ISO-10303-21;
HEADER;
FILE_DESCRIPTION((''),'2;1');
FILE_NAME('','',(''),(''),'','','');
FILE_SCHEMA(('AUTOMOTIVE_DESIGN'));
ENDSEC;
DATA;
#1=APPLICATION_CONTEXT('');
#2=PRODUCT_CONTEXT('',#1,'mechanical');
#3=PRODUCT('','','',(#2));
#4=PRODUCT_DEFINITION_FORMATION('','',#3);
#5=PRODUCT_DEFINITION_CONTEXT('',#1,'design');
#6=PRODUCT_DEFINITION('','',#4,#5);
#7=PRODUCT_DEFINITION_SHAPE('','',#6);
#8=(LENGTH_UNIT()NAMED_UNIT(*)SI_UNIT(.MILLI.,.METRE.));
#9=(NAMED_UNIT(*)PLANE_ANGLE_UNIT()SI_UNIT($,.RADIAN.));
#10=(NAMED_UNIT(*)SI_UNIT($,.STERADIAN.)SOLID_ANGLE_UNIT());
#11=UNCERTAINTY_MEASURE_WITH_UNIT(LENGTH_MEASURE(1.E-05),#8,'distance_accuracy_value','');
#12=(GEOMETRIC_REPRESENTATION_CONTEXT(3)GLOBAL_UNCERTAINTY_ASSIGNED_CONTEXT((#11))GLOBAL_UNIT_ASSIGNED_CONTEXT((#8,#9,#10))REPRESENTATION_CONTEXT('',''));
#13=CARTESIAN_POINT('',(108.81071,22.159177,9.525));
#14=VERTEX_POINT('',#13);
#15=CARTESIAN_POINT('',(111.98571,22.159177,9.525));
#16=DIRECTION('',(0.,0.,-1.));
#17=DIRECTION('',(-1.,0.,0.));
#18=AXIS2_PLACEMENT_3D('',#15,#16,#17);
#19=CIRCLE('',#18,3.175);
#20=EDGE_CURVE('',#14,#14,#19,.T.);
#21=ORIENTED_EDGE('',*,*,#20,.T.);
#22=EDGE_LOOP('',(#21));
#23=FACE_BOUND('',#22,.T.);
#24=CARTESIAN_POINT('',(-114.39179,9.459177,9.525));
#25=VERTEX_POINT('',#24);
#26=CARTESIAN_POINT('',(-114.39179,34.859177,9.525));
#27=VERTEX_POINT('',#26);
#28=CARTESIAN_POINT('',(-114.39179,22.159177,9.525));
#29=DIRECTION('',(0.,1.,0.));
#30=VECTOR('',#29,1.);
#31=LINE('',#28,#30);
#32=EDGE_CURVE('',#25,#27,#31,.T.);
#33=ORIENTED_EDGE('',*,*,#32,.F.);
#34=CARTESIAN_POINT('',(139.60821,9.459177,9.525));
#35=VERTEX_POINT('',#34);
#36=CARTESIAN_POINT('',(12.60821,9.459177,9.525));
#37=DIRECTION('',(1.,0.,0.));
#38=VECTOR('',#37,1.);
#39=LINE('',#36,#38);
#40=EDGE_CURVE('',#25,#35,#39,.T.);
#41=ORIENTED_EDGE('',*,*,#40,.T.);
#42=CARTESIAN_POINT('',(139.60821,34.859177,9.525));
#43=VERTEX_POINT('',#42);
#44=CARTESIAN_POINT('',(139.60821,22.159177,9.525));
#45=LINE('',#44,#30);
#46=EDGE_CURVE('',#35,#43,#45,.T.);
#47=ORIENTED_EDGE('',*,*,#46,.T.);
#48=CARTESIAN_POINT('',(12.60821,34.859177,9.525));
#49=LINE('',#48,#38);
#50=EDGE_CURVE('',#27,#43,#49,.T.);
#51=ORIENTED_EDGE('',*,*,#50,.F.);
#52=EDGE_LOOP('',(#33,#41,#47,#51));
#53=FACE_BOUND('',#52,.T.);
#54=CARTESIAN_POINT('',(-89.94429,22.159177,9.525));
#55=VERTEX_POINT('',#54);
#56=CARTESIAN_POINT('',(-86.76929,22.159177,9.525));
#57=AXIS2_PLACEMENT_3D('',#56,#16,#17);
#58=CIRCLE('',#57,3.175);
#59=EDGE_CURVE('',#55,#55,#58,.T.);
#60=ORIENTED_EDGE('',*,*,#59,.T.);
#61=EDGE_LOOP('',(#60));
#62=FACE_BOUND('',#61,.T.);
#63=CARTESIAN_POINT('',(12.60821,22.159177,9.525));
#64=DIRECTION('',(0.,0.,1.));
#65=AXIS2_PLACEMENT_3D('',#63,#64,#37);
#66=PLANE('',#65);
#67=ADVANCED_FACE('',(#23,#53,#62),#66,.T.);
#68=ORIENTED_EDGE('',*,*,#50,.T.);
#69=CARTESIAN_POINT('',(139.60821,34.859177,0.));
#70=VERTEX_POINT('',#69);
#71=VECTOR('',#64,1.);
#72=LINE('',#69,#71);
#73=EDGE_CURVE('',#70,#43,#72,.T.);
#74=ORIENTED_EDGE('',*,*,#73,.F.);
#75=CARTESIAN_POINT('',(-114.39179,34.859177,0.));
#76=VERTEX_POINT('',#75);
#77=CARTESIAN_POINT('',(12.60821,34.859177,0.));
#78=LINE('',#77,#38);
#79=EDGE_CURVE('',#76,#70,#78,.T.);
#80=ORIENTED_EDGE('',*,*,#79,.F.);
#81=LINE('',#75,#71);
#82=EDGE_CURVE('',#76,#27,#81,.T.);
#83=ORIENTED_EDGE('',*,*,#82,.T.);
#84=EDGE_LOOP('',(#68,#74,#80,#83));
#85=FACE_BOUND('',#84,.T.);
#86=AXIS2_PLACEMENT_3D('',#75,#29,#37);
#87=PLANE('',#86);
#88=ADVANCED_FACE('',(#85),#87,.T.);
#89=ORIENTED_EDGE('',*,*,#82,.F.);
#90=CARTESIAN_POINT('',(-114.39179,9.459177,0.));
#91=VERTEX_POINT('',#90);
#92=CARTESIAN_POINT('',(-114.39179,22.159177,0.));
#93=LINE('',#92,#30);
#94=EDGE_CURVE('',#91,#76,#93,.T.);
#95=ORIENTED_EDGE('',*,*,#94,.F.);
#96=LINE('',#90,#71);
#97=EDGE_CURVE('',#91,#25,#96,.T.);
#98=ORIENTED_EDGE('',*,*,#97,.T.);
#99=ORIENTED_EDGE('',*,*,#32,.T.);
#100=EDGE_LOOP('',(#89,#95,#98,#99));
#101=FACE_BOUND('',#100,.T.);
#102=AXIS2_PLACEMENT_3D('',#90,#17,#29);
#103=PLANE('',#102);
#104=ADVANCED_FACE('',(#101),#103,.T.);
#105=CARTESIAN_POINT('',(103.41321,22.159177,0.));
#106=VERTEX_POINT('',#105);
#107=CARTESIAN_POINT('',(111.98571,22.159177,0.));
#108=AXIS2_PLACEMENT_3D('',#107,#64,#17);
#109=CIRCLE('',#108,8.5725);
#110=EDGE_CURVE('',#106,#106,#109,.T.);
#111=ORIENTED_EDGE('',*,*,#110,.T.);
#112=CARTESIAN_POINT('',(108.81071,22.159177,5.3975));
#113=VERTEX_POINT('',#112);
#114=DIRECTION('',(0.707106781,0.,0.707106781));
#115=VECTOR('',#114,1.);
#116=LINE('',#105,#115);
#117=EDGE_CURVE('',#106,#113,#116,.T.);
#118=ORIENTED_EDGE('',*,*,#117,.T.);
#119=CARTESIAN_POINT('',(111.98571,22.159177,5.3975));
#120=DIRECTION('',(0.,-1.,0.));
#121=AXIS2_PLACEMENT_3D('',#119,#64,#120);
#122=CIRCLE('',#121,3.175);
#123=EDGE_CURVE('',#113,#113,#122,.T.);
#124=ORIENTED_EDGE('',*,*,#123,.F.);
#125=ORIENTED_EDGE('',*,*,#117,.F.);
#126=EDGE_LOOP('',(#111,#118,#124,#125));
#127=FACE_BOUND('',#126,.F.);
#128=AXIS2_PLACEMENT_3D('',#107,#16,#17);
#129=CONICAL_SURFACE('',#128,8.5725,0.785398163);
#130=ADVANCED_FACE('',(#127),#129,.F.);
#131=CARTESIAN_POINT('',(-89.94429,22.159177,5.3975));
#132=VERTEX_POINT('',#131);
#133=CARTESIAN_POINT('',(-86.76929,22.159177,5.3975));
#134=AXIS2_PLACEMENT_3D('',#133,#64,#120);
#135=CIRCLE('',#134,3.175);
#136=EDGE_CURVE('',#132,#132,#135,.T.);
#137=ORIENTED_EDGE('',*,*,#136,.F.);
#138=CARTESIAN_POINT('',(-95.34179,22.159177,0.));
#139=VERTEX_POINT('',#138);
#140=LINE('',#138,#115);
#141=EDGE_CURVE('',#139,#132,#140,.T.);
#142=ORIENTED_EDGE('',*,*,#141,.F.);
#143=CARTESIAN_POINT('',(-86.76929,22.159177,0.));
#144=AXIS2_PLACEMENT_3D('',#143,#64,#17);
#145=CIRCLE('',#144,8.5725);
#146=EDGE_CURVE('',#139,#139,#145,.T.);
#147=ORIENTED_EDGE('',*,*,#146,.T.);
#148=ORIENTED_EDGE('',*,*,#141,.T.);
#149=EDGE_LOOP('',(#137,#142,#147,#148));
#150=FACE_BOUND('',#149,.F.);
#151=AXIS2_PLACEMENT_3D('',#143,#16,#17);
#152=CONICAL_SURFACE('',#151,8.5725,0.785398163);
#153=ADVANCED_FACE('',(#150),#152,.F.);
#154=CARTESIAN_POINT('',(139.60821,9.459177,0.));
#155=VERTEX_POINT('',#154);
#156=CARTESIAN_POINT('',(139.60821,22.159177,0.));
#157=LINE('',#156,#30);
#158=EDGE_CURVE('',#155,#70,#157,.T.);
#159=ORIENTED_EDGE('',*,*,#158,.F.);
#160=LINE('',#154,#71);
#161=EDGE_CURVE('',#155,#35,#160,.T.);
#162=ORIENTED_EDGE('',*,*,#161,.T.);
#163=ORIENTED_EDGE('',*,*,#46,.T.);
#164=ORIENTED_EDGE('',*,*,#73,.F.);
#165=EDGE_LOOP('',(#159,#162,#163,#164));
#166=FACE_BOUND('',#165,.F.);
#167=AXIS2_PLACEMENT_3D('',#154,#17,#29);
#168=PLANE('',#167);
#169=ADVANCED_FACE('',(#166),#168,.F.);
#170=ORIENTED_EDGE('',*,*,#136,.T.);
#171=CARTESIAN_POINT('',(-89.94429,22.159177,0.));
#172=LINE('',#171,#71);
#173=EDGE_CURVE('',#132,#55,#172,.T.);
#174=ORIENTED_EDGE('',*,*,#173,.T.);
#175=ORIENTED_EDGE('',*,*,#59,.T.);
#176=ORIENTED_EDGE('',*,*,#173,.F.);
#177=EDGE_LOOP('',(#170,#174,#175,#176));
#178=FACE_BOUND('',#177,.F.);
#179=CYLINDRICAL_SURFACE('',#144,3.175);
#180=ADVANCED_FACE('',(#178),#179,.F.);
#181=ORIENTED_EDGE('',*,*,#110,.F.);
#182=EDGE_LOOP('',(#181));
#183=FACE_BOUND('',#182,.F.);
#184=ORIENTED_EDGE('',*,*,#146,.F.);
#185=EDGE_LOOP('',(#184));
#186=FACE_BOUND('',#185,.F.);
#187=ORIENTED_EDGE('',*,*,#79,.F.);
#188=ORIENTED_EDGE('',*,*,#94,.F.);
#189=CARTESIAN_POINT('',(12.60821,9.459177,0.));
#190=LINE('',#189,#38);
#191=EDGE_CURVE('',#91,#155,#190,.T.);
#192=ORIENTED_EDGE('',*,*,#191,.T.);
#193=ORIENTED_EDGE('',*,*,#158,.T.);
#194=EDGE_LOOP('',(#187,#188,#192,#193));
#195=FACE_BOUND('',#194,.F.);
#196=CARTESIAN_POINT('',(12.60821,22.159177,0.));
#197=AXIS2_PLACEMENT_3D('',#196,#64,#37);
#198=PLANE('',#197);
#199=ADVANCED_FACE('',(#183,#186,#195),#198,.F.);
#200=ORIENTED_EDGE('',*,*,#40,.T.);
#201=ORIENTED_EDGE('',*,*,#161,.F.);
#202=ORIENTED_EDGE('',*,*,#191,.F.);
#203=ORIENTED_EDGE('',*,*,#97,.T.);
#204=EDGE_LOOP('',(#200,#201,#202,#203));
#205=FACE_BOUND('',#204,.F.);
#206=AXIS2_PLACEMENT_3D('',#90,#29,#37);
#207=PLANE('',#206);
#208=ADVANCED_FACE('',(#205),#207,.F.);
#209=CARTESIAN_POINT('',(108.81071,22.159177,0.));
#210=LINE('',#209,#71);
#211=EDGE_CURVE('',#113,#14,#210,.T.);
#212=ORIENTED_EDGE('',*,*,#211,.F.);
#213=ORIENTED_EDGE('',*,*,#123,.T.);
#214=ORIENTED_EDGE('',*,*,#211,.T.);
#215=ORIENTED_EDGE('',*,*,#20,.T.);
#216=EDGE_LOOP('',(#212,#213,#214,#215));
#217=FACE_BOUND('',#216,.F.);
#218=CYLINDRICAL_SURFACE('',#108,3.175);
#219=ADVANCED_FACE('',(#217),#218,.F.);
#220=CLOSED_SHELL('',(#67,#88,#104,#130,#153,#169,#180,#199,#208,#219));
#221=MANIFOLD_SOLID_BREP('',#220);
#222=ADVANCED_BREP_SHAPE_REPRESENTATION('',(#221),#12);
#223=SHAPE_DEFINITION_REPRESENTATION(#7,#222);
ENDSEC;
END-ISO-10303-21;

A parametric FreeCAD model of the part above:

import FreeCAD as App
import Part
import Sketcher
Q = App.Units.Quantity


def add_polygon(sketch, points):
    """Adds a closed chain of lines whose ends are joined by coincident constraints."""
    first, n = sketch.GeometryCount, len(points)
    for a, b in zip(points, points[1:] + points[:1]):
        sketch.addGeometry(Part.LineSegment(App.Vector(*a, 0), App.Vector(*b, 0)), False)
    for i in range(n):
        sketch.addConstraint(Sketcher.Constraint("Coincident", first + i, 2, first + (i + 1) % n, 1))

doc = App.newDocument("Part")
body = doc.addObject("PartDesign::Body", "Body")

sketch1 = body.newObject("Sketcher::SketchObject", "Sketch")
sketch1.AttachmentSupport = (doc.getObject("XY_Plane"), [""])
sketch1.MapMode = "FlatFace"
add_polygon(sketch1, [(-114, 35), (-114, 9), (140, 9), (140, 35)])
sketch1.addConstraint(Sketcher.Constraint("Vertical", 0))
sketch1.addConstraint(Sketcher.Constraint("Horizontal", 1))
sketch1.addConstraint(Sketcher.Constraint("Vertical", 2))
sketch1.addConstraint(Sketcher.Constraint("Horizontal", 3))
sketch1.addConstraint(Sketcher.Constraint("DistanceX", 1, 1, 1, 2, Q("10 in")))
sketch1.addConstraint(Sketcher.Constraint("DistanceY", 0, 2, 0, 1, Q("1 in")))
sketch1.addConstraint(Sketcher.Constraint("DistanceX", 0, 2, -1, 1, Q("114.39179 mm")))
sketch1.addConstraint(Sketcher.Constraint("DistanceY", -1, 1, 0, 2, Q("9.459177 mm")))
pad1 = body.newObject("PartDesign::Pad", "Pad")
pad1.Profile = sketch1
pad1.Length = Q("0.375 in")

sketch2 = body.newObject("Sketcher::SketchObject", "Sketch001")
sketch2.AttachmentSupport = (doc.getObject("XY_Plane"), [""])
sketch2.MapMode = "FlatFace"
sketch2.addGeometry(Part.Circle(App.Vector(-86.8, 22.2, 0), App.Vector(0, 0, 1), 3.2), False)
sketch2.addGeometry(Part.Circle(App.Vector(112, 22.2, 0), App.Vector(0, 0, 1), 3.2), False)
sketch2.addConstraint(Sketcher.Constraint("Equal", 0, 1))
sketch2.addConstraint(Sketcher.Constraint("Horizontal", 0, 3, 1, 3))
sketch2.addConstraint(Sketcher.Constraint("Diameter", 0, Q("0.25 in")))
sketch2.addConstraint(Sketcher.Constraint("DistanceX", 0, 3, 1, 3, Q("7.825 in")))
sketch2.addConstraint(Sketcher.Constraint("DistanceX", 0, 3, -1, 1, Q("86.76929 mm")))
sketch2.addConstraint(Sketcher.Constraint("DistanceY", -1, 1, 0, 3, Q("22.159177 mm")))
doc.recompute()
hole = body.newObject("PartDesign::Hole", "Hole")
hole.Profile = sketch2
hole.ThreadType = "None"
hole.Diameter = Q("0.25 in")
hole.DepthType = "Dimension"
hole.Depth = Q("0.375 in")
hole.DrillPoint = "Angled"
hole.DrillPointAngle = 118
hole.HoleCutType = "Countersink"
hole.HoleCutDiameter = Q("0.675 in")
hole.HoleCutCountersinkAngle = 90
hole.Reversed = True

doc.recompute()
